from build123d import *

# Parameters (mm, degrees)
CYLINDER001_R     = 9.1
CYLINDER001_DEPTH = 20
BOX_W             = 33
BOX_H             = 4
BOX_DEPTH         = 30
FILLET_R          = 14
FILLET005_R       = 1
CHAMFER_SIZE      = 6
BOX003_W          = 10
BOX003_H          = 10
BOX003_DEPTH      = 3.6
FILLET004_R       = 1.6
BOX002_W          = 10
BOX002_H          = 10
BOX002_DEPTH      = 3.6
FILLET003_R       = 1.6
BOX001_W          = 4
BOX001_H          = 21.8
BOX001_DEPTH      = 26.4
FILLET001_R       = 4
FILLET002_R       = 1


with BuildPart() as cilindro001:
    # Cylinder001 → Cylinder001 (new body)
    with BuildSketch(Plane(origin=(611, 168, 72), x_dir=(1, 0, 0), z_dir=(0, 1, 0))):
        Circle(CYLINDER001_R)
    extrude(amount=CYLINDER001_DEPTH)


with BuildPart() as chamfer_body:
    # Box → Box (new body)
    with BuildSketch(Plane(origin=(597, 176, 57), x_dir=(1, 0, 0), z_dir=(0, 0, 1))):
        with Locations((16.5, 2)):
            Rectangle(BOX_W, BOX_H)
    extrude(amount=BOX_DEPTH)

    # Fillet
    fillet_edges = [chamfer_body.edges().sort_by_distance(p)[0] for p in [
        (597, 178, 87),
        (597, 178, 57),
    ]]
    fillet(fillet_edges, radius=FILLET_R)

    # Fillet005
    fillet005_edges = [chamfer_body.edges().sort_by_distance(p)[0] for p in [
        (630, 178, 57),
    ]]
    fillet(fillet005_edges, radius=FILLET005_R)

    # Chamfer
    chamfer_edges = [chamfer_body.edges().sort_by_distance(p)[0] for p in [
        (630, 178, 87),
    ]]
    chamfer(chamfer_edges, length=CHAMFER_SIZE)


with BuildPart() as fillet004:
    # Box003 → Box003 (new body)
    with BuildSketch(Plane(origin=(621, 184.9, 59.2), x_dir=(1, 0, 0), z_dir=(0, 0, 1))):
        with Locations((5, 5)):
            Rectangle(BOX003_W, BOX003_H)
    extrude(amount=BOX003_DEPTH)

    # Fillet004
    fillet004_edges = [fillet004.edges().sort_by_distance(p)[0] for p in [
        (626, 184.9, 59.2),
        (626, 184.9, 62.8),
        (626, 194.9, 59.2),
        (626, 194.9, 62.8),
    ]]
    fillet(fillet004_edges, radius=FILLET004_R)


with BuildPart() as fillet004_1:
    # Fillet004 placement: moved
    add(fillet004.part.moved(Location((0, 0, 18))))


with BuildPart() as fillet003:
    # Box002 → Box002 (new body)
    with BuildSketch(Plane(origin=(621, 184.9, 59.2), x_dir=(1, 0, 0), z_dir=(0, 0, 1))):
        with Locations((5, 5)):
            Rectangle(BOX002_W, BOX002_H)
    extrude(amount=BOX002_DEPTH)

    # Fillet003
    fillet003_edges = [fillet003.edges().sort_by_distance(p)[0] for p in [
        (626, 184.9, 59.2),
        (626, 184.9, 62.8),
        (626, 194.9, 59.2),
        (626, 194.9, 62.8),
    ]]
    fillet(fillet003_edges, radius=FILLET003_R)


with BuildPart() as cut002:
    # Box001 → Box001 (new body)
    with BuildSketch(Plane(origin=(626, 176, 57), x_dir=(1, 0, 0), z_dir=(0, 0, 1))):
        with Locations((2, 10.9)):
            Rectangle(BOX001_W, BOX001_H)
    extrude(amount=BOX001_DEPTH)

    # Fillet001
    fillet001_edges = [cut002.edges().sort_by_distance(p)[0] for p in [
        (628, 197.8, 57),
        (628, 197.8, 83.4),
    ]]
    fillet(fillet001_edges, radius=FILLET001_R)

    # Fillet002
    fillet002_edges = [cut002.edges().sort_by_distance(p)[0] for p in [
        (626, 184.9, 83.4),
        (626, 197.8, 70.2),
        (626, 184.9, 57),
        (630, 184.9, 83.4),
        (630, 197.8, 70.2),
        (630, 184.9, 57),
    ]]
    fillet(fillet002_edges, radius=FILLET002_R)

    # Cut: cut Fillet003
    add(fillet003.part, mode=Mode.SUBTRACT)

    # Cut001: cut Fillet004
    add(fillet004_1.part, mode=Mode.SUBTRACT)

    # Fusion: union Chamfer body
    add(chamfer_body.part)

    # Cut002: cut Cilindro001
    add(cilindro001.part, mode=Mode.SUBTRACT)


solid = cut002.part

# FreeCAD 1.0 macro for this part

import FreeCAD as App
import Part
import Sketcher


def edges_at(feature, points):
    """Names of the edges that pass closest to the given points."""
    edges = feature.Shape.Edges
    near = lambda p: min(range(len(edges)), key=lambda i: edges[i].distToShape(Part.Vertex(*p))[0])
    return sorted({f"Edge{near(p) + 1}" for p in points})


def add_polygon(sketch, points):
    """Adds a closed chain of lines whose ends are joined by coincident constraints."""
    first, n = sketch.GeometryCount, len(points)
    for a, b in zip(points, points[1:] + points[:1]):
        sketch.addGeometry(Part.LineSegment(App.Vector(*a, 0), App.Vector(*b, 0)), False)
    for i in range(n):
        sketch.addConstraint(Sketcher.Constraint("Coincident", first + i, 2, first + (i + 1) % n, 1))

doc = App.newDocument("Part")
params = doc.addObject("Spreadsheet::Sheet", "Params")
for row, (alias, value) in enumerate([
    ("sketch1_diameter", "18.2 mm"),
    ("pad1_length", "20 mm"),
    ("sketch2_width", "33 mm"),
    ("sketch2_height", "4 mm"),
    ("pad2_length", "30 mm"),
    ("fillet_radius", "14 mm"),
    ("fillet2_radius", "1 mm"),
    ("chamfer_size", "6 mm"),
    ("sketch3_width", "10 mm"),
    ("pad3_length", "3.6 mm"),
    ("fillet3_radius", "1.6 mm"),
    ("sketch4_width", "10 mm"),
    ("pad4_length", "3.6 mm"),
    ("fillet4_radius", "1.6 mm"),
    ("sketch5_width", "4 mm"),
    ("sketch5_height", "21.8 mm"),
    ("pad5_length", "26.4 mm"),
    ("fillet5_radius", "4 mm"),
    ("fillet6_radius", "1 mm"),
], start=1):
    params.set(f"A{row}", alias)
    params.set(f"B{row}", "=" + value)
    params.setAlias(f"B{row}", alias)

body = doc.addObject("PartDesign::Body", "Body")

sketch1 = doc.addObject("Sketcher::SketchObject", "Sketch")
body.addObject(sketch1)
sketch1.AttachmentSupport = (doc.XZ_Plane, [""])
sketch1.MapMode = "FlatFace"
sketch1.AttachmentOffset = App.Placement(App.Vector(0, 0, -168), App.Rotation())
sketch1.addGeometry(Part.Circle(App.Vector(611, 72, 0), App.Vector(0, 0, 1), 9), False)
sketch1.addConstraint([
    Sketcher.Constraint("Diameter", 0, 18.2),
    Sketcher.Constraint("DistanceX", -1, 1, 0, 3, 611.0),
    Sketcher.Constraint("DistanceY", -1, 1, 0, 3, 72.0),
])
sketch1.setExpression("Constraints[0]", "Params.sketch1_diameter")
pad1 = doc.addObject("PartDesign::Pad", "Pad")
body.addObject(pad1)
pad1.Profile = sketch1
pad1.setExpression("Length", "Params.pad1_length")
pad1.Reversed = True
body2 = doc.addObject("PartDesign::Body", "Body001")

sketch2 = doc.addObject("Sketcher::SketchObject", "Sketch001")
body2.addObject(sketch2)
sketch2.AttachmentSupport = (doc.getObject("XY_Plane001"), [""])
sketch2.MapMode = "FlatFace"
sketch2.AttachmentOffset = App.Placement(App.Vector(0, 0, 57), App.Rotation())
add_polygon(sketch2, [(597, 180), (597, 176), (630, 176), (630, 180)])
sketch2.addConstraint([
    Sketcher.Constraint("Vertical", 0),
    Sketcher.Constraint("Horizontal", 1),
    Sketcher.Constraint("Vertical", 2),
    Sketcher.Constraint("Horizontal", 3),
    Sketcher.Constraint("DistanceX", 1, 1, 1, 2, 33.0),
    Sketcher.Constraint("DistanceY", 0, 2, 0, 1, 4.0),
    Sketcher.Constraint("DistanceX", -1, 1, 0, 2, 597.0),
    Sketcher.Constraint("DistanceY", -1, 1, 0, 2, 176.0),
])
sketch2.setExpression("Constraints[8]", "Params.sketch2_width")
sketch2.setExpression("Constraints[9]", "Params.sketch2_height")
pad2 = doc.addObject("PartDesign::Pad", "Pad001")
body2.addObject(pad2)
pad2.Profile = sketch2
pad2.setExpression("Length", "Params.pad2_length")
doc.recompute()

fillet = doc.addObject("PartDesign::Fillet", "Fillet")
body2.addObject(fillet)
fillet.Base = (pad2, edges_at(pad2, [(597, 178, 87), (597, 178, 57)]))
fillet.setExpression("Radius", "Params.fillet_radius")
doc.recompute()

fillet2 = doc.addObject("PartDesign::Fillet", "Fillet001")
body2.addObject(fillet2)
fillet2.Base = (fillet, edges_at(fillet, [(630, 178, 57)]))
fillet2.setExpression("Radius", "Params.fillet2_radius")
doc.recompute()

chamfer = doc.addObject("PartDesign::Chamfer", "Chamfer")
body2.addObject(chamfer)
chamfer.Base = (fillet2, edges_at(fillet2, [(630, 178, 87)]))
chamfer.setExpression("Size", "Params.chamfer_size")
body3 = doc.addObject("PartDesign::Body", "Body002")

sketch3 = doc.addObject("Sketcher::SketchObject", "Sketch002")
body3.addObject(sketch3)
sketch3.AttachmentSupport = (doc.getObject("XY_Plane002"), [""])
sketch3.MapMode = "FlatFace"
sketch3.AttachmentOffset = App.Placement(App.Vector(0, 0, 59.2), App.Rotation())
add_polygon(sketch3, [(621, 195), (621, 185), (631, 185), (631, 195)])
sketch3.addConstraint([
    Sketcher.Constraint("Vertical", 0),
    Sketcher.Constraint("Horizontal", 1),
    Sketcher.Constraint("Vertical", 2),
    Sketcher.Constraint("Horizontal", 3),
    Sketcher.Constraint("Equal", 3, 0),
    Sketcher.Constraint("DistanceX", 1, 1, 1, 2, 10.0),
    Sketcher.Constraint("DistanceX", -1, 1, 0, 2, 621.0),
    Sketcher.Constraint("DistanceY", -1, 1, 0, 2, 184.9),
])
sketch3.setExpression("Constraints[9]", "Params.sketch3_width")
pad3 = doc.addObject("PartDesign::Pad", "Pad002")
body3.addObject(pad3)
pad3.Profile = sketch3
pad3.setExpression("Length", "Params.pad3_length")
doc.recompute()

fillet3 = doc.addObject("PartDesign::Fillet", "Fillet002")
body3.addObject(fillet3)
fillet3.Base = (pad3, edges_at(pad3, [
    (626, 184.9, 59.2),
    (626, 184.9, 62.8),
    (626, 194.9, 59.2),
    (626, 194.9, 62.8),
]))
fillet3.setExpression("Radius", "Params.fillet3_radius")
body4 = doc.addObject("PartDesign::Body", "Body003")
doc.recompute()

body3.Placement = App.Placement(App.Vector(0, 0, 18), App.Rotation(App.Vector(0, 0, 1), 0))
boolean = doc.addObject("PartDesign::Boolean", "Boolean")
body4.addObject(boolean)
boolean.Type = "Fuse"
boolean.addObjects([body3])
body5 = doc.addObject("PartDesign::Body", "Body004")

sketch4 = doc.addObject("Sketcher::SketchObject", "Sketch003")
body5.addObject(sketch4)
sketch4.AttachmentSupport = (doc.getObject("XY_Plane004"), [""])
sketch4.MapMode = "FlatFace"
sketch4.AttachmentOffset = App.Placement(App.Vector(0, 0, 59.2), App.Rotation())
add_polygon(sketch4, [(621, 195), (621, 185), (631, 185), (631, 195)])
sketch4.addConstraint([
    Sketcher.Constraint("Vertical", 0),
    Sketcher.Constraint("Horizontal", 1),
    Sketcher.Constraint("Vertical", 2),
    Sketcher.Constraint("Horizontal", 3),
    Sketcher.Constraint("Equal", 3, 0),
    Sketcher.Constraint("DistanceX", 1, 1, 1, 2, 10.0),
    Sketcher.Constraint("DistanceX", -1, 1, 0, 2, 621.0),
    Sketcher.Constraint("DistanceY", -1, 1, 0, 2, 184.9),
])
sketch4.setExpression("Constraints[9]", "Params.sketch4_width")
pad4 = doc.addObject("PartDesign::Pad", "Pad003")
body5.addObject(pad4)
pad4.Profile = sketch4
pad4.setExpression("Length", "Params.pad4_length")
doc.recompute()

fillet4 = doc.addObject("PartDesign::Fillet", "Fillet003")
body5.addObject(fillet4)
fillet4.Base = (pad4, edges_at(pad4, [
    (626, 184.9, 59.2),
    (626, 184.9, 62.8),
    (626, 194.9, 59.2),
    (626, 194.9, 62.8),
]))
fillet4.setExpression("Radius", "Params.fillet4_radius")
body6 = doc.addObject("PartDesign::Body", "Body005")

sketch5 = doc.addObject("Sketcher::SketchObject", "Sketch004")
body6.addObject(sketch5)
sketch5.AttachmentSupport = (doc.getObject("XY_Plane005"), [""])
sketch5.MapMode = "FlatFace"
sketch5.AttachmentOffset = App.Placement(App.Vector(0, 0, 57), App.Rotation())
add_polygon(sketch5, [(626, 197.8), (626, 176), (630, 176), (630, 197.8)])
sketch5.addConstraint([
    Sketcher.Constraint("Vertical", 0),
    Sketcher.Constraint("Horizontal", 1),
    Sketcher.Constraint("Vertical", 2),
    Sketcher.Constraint("Horizontal", 3),
    Sketcher.Constraint("DistanceX", 1, 1, 1, 2, 4.0),
    Sketcher.Constraint("DistanceY", 0, 2, 0, 1, 21.8),
    Sketcher.Constraint("DistanceX", -1, 1, 0, 2, 626.0),
    Sketcher.Constraint("DistanceY", -1, 1, 0, 2, 176.0),
])
sketch5.setExpression("Constraints[8]", "Params.sketch5_width")
sketch5.setExpression("Constraints[9]", "Params.sketch5_height")
pad5 = doc.addObject("PartDesign::Pad", "Pad004")
body6.addObject(pad5)
pad5.Profile = sketch5
pad5.setExpression("Length", "Params.pad5_length")
doc.recompute()

fillet5 = doc.addObject("PartDesign::Fillet", "Fillet004")
body6.addObject(fillet5)
fillet5.Base = (pad5, edges_at(pad5, [(628, 197.8, 57), (628, 197.8, 83.4)]))
fillet5.setExpression("Radius", "Params.fillet5_radius")
doc.recompute()

fillet6 = doc.addObject("PartDesign::Fillet", "Fillet005")
body6.addObject(fillet6)
fillet6.Base = (fillet5, edges_at(fillet5, [
    (626, 184.9, 83.4),
    (626, 197.8, 70.2),
    (626, 184.9, 57),
    (630, 184.9, 83.4),
    (630, 197.8, 70.2),
    (630, 184.9, 57),
]))
fillet6.setExpression("Radius", "Params.fillet6_radius")
doc.recompute()

boolean2 = doc.addObject("PartDesign::Boolean", "Boolean001")
body6.addObject(boolean2)
boolean2.Type = "Cut"
boolean2.addObjects([body5])
doc.recompute()

boolean3 = doc.addObject("PartDesign::Boolean", "Boolean002")
body6.addObject(boolean3)
boolean3.Type = "Cut"
boolean3.addObjects([body4])
doc.recompute()

boolean4 = doc.addObject("PartDesign::Boolean", "Boolean003")
body6.addObject(boolean4)
boolean4.Type = "Fuse"
boolean4.addObjects([body2])
doc.recompute()

boolean5 = doc.addObject("PartDesign::Boolean", "Boolean004")
body6.addObject(boolean5)
boolean5.Type = "Cut"
boolean5.addObjects([body])

doc.recompute()
